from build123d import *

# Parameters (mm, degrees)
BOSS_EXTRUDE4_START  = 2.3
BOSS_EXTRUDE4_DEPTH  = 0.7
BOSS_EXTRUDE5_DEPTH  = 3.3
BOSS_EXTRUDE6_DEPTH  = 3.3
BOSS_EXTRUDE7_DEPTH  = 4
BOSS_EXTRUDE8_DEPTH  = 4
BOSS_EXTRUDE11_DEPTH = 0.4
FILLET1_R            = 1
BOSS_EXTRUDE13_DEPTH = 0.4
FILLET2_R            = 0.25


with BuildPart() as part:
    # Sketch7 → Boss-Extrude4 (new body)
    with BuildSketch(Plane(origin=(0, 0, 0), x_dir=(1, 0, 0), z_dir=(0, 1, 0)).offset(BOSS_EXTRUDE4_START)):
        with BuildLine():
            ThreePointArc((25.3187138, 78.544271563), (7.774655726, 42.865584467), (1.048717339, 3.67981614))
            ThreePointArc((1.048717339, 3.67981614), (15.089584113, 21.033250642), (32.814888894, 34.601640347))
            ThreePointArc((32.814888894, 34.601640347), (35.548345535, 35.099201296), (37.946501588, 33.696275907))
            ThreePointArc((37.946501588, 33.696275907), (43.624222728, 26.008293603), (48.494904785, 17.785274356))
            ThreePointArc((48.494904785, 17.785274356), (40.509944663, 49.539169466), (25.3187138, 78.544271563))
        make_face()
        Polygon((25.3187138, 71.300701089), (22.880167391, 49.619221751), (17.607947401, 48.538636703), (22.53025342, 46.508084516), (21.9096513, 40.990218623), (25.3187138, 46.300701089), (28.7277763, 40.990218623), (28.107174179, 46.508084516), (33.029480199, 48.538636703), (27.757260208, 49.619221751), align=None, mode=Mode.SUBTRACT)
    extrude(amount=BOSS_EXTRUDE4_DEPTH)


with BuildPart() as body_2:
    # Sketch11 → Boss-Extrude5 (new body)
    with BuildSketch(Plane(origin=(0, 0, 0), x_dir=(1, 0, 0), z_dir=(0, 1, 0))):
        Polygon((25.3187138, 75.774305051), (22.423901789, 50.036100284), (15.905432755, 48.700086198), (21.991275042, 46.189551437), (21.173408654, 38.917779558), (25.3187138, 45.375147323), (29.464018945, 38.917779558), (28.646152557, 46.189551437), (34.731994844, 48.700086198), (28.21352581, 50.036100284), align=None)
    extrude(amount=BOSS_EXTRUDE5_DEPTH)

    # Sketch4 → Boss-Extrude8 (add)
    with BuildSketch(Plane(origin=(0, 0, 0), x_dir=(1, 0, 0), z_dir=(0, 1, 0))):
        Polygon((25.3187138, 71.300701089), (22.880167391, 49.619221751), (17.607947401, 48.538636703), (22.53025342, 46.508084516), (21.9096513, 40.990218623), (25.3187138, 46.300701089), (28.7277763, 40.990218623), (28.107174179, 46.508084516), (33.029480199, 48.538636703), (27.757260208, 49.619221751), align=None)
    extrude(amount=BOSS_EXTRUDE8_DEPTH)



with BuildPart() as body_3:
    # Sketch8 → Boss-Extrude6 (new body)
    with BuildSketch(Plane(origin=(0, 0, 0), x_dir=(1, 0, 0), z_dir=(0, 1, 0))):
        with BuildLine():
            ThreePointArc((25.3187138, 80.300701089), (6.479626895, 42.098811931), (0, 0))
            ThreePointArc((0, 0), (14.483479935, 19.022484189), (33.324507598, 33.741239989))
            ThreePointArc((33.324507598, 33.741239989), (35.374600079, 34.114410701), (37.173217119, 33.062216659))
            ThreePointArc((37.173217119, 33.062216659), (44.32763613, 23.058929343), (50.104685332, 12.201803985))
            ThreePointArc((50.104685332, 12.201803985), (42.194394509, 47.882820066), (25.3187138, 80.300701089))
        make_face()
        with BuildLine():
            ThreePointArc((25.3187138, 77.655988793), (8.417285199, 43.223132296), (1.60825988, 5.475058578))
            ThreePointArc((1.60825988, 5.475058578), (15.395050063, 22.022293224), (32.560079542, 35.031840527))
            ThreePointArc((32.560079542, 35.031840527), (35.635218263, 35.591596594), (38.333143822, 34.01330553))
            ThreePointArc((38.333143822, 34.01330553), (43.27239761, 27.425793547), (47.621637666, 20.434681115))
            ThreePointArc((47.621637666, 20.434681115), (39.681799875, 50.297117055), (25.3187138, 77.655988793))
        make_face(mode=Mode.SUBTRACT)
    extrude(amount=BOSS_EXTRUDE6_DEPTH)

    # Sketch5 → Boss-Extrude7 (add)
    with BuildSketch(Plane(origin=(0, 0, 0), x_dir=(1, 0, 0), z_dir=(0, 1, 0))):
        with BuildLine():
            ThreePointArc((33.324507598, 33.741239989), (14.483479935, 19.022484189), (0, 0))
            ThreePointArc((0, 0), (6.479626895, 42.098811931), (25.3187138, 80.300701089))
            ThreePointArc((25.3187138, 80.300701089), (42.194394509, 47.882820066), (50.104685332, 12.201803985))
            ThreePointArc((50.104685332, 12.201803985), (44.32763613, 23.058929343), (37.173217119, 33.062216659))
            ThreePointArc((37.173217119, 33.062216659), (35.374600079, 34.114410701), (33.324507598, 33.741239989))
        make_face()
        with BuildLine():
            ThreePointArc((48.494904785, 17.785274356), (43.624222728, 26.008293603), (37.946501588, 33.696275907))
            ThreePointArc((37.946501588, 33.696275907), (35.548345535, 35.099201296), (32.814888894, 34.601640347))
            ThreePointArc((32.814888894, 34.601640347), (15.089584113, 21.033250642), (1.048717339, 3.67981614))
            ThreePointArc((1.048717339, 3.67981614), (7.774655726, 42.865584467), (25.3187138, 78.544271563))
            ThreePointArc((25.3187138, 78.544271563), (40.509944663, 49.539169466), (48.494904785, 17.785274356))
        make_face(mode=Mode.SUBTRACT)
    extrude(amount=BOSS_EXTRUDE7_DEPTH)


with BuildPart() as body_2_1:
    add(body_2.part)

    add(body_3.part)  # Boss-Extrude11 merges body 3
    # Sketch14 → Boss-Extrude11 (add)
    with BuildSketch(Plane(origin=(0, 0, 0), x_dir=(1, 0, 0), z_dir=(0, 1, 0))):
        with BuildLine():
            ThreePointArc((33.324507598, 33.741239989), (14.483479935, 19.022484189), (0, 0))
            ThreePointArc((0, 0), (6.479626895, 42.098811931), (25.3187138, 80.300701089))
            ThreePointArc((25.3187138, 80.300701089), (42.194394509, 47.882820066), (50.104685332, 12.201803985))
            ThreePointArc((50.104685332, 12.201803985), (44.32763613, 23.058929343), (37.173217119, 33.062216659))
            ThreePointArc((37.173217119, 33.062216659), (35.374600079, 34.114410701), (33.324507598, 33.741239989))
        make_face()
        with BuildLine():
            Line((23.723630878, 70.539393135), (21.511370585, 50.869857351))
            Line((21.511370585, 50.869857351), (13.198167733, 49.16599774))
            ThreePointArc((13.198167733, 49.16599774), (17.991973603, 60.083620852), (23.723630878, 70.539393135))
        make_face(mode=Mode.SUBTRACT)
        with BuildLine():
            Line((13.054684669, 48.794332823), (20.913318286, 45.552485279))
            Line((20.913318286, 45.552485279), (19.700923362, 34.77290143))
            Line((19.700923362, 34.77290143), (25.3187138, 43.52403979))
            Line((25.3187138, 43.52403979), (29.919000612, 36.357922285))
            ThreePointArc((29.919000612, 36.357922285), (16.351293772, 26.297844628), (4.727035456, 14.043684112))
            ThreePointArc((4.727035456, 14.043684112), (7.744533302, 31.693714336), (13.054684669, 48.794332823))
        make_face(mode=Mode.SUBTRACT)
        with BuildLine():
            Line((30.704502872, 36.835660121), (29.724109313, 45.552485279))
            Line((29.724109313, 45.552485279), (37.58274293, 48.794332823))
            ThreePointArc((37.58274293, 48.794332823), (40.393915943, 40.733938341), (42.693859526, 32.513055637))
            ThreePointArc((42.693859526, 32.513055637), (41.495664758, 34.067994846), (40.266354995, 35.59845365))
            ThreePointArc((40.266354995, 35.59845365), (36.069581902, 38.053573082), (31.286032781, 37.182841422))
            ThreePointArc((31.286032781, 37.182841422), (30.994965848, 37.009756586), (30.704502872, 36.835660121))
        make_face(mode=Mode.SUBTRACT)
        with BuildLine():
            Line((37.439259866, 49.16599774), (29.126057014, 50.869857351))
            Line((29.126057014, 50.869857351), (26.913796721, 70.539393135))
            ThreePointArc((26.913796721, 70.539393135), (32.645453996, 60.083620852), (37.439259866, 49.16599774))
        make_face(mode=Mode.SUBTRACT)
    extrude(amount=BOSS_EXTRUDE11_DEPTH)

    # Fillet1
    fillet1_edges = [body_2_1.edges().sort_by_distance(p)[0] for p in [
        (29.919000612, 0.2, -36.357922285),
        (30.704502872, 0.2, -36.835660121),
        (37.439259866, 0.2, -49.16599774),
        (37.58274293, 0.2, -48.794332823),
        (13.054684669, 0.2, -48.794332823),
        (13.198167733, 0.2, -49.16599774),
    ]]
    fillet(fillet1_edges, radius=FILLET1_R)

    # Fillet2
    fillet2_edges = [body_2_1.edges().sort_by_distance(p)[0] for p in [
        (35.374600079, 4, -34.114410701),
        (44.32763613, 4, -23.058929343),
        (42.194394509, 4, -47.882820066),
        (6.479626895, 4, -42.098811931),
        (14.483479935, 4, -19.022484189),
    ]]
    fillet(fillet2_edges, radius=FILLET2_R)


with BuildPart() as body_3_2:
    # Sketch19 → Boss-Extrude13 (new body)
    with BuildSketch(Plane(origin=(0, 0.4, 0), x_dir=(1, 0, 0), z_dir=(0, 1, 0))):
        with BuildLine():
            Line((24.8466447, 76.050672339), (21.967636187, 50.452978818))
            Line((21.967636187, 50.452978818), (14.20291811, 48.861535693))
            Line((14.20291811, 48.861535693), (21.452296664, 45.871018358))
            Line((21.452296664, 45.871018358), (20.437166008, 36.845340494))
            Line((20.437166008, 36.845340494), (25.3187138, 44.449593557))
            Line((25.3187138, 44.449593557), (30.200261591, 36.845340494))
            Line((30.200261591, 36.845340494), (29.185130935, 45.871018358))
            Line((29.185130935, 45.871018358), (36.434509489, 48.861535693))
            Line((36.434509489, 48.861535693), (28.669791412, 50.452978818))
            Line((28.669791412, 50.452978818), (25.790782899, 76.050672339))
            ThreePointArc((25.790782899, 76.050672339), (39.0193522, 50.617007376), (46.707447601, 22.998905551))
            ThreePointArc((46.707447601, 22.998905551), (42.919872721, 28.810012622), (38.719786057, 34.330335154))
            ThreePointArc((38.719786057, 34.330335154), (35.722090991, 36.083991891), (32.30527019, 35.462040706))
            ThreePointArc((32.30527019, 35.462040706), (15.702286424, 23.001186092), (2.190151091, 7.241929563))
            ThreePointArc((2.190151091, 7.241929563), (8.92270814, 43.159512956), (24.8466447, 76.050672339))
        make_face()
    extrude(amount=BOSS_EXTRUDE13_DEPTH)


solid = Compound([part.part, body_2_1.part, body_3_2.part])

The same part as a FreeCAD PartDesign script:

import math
import FreeCAD as App
import Part
import Sketcher

V = App.Vector


def edges_at(feature, points):
    """Names of the edges that pass closest to the given points."""
    edges = feature.Shape.Edges
    near = lambda p: min(range(len(edges)), key=lambda i: edges[i].distToShape(Part.Vertex(*p))[0])
    return sorted({f"Edge{near(p) + 1}" for p in points})

doc = App.newDocument("Part")
body = doc.addObject("PartDesign::Body", "Body")

# Sketch on XZ plane
sketch1 = body.newObject("Sketcher::SketchObject", "Sketch")
sketch1.AttachmentSupport = (doc.getObject("XZ_Plane"), [""])
sketch1.MapMode = "FlatFace"
sketch1.AttachmentOffset = App.Placement(V(0, 0, -2.3), App.Rotation())
sketch1.addGeometry(Part.ArcOfCircle(Part.Circle(V(140, 0, 0), V(0, 0, 1), 139), math.radians(-178), math.radians(-146)), False)
sketch1.addGeometry(Part.ArcOfCircle(Part.Circle(V(80.9, 46.6, 0), V(0, 0, 1), 94.3), math.radians(-148), math.radians(-121)), False)
sketch1.addGeometry(Part.ArcOfCircle(Part.Circle(V(34.9, -31.2, 0), V(0, 0, 1), 4), math.radians(-121), math.radians(-39)), False)
sketch1.addGeometry(Part.ArcOfCircle(Part.Circle(V(-35, 26.1, 0), V(0, 0, 1), 94.3), math.radians(-39.35), math.radians(-27.74)), False)
sketch1.addGeometry(Part.ArcOfCircle(Part.Circle(V(-89.4, 0, 0), V(0, 0, 1), 139), math.radians(-34), math.radians(-7)), False)
sketch1.addGeometry(Part.LineSegment(V(22.9, -49.6, 0), V(25.3, -71.3, 0)), False)
sketch1.addGeometry(Part.LineSegment(V(25.3, -71.3, 0), V(27.8, -49.6, 0)), False)
sketch1.addGeometry(Part.LineSegment(V(27.8, -49.6, 0), V(33, -48.5, 0)), False)
sketch1.addGeometry(Part.LineSegment(V(33, -48.5, 0), V(28.1, -46.5, 0)), False)
sketch1.addGeometry(Part.LineSegment(V(28.1, -46.5, 0), V(28.7, -41, 0)), False)
sketch1.addGeometry(Part.LineSegment(V(28.7, -41, 0), V(25.3, -46.3, 0)), False)
sketch1.addGeometry(Part.LineSegment(V(25.3, -46.3, 0), V(21.9, -41, 0)), False)
sketch1.addGeometry(Part.LineSegment(V(21.9, -41, 0), V(22.5, -46.5, 0)), False)
sketch1.addGeometry(Part.LineSegment(V(22.5, -46.5, 0), V(17.6, -48.5, 0)), False)
sketch1.addGeometry(Part.LineSegment(V(17.6, -48.5, 0), V(22.9, -49.6, 0)), False)
sketch1.addConstraint(Sketcher.Constraint("Coincident", 0, 1, 1, 1))
sketch1.addConstraint(Sketcher.Constraint("Tangent", 1, 2, 2, 1))
sketch1.addConstraint(Sketcher.Constraint("Tangent", 2, 2, 3, 1))
sketch1.addConstraint(Sketcher.Constraint("Coincident", 3, 2, 4, 2))
sketch1.addConstraint(Sketcher.Constraint("Coincident", 4, 1, 0, 2))
sketch1.addConstraint(Sketcher.Constraint("Coincident", 5, 2, 6, 1))
sketch1.addConstraint(Sketcher.Constraint("Coincident", 6, 2, 7, 1))
sketch1.addConstraint(Sketcher.Constraint("Coincident", 7, 2, 8, 1))
sketch1.addConstraint(Sketcher.Constraint("Coincident", 8, 2, 9, 1))
sketch1.addConstraint(Sketcher.Constraint("Coincident", 9, 2, 10, 1))
sketch1.addConstraint(Sketcher.Constraint("Coincident", 10, 2, 11, 1))
sketch1.addConstraint(Sketcher.Constraint("Coincident", 11, 2, 12, 1))
sketch1.addConstraint(Sketcher.Constraint("Coincident", 12, 2, 13, 1))
sketch1.addConstraint(Sketcher.Constraint("Coincident", 13, 2, 14, 1))
sketch1.addConstraint(Sketcher.Constraint("Coincident", 14, 2, 5, 1))
sketch1.addConstraint(Sketcher.Constraint("Equal", 1, 3))
sketch1.addConstraint(Sketcher.Constraint("Equal", 0, 4))
sketch1.addConstraint(Sketcher.Constraint("PointOnObject", 0, 3, -1))
sketch1.addConstraint(Sketcher.Constraint("PointOnObject", 4, 3, -1))
sketch1.addConstraint(Sketcher.Constraint("Parallel", 6, 9))
sketch1.addConstraint(Sketcher.Constraint("Parallel", 5, 12))
sketch1.addConstraint(Sketcher.Constraint("Horizontal", 9, 2, 11, 2))
sketch1.addConstraint(Sketcher.Constraint("Horizontal", 8, 2, 12, 2))
sketch1.addConstraint(Sketcher.Constraint("Horizontal", 7, 2, 13, 2))
sketch1.addConstraint(Sketcher.Constraint("Horizontal", 6, 2, 14, 2))
sketch1.addConstraint(Sketcher.Constraint("Vertical", 4, 1, 5, 2))
sketch1.addConstraint(Sketcher.Constraint("Vertical", 5, 2, 10, 2))
sketch1.addConstraint(Sketcher.Constraint("Equal", 5, 6))
sketch1.addConstraint(Sketcher.Constraint("Equal", 10, 11))
sketch1.addConstraint(Sketcher.Constraint("Equal", 8, 13))
sketch1.addConstraint(Sketcher.Constraint("Radius", 0, 139.0))
sketch1.addConstraint(Sketcher.Constraint("Radius", 2, 4.0))
sketch1.addConstraint(Sketcher.Constraint("DistanceX", -1, 1, 0, 3, 140.0))
sketch1.addConstraint(Sketcher.Constraint("DistanceX", 3, 3, -1, 1, 35.0))
sketch1.addConstraint(Sketcher.Constraint("Radius", 1, 94.333333))
sketch1.addConstraint(Sketcher.Constraint("DistanceY", 2, 2, 3, 2, 15.911002))
sketch1.addConstraint(Sketcher.Constraint("DistanceX", -1, 1, 2, 2, 37.946502))
sketch1.addConstraint(Sketcher.Constraint("DistanceY", 5, 2, -1, 1, 71.300701))
sketch1.addConstraint(Sketcher.Constraint("DistanceY", 10, 2, -1, 1, 46.300701))
sketch1.addConstraint(Sketcher.Constraint("Distance", 5, 21.818182))
sketch1.addConstraint(Sketcher.Constraint("Distance", 7, 5.381818))
sketch1.addConstraint(Sketcher.Constraint("Distance", 10, 6.310541))
sketch1.addConstraint(Sketcher.Constraint("DistanceX", -1, 1, 1, 3, 80.88892))
sketch1.addConstraint(Sketcher.Constraint("DistanceY", 2, 3, -1, 1, 31.160039))
sketch1.addConstraint(Sketcher.Constraint("DistanceX", -1, 1, 6, 2, 27.75726))
sketch1.addConstraint(Sketcher.Constraint("DistanceX", -1, 1, 7, 2, 33.02948))
sketch1.addConstraint(Sketcher.Constraint("DistanceY", 9, 2, -1, 1, 40.990219))
sketch1.addConstraint(Sketcher.Constraint("DistanceY", 8, 2, 2, 2, 12.811809))
pad1 = body.newObject("PartDesign::Pad", "Pad")
pad1.Profile = sketch1
pad1.Length = 0.7
pad1.Reversed = True
body2 = doc.addObject("PartDesign::Body", "Body001")

# Sketch on XZ plane
sketch2 = body2.newObject("Sketcher::SketchObject", "Sketch001")
sketch2.AttachmentSupport = (doc.getObject("XZ_Plane001"), [""])
sketch2.MapMode = "FlatFace"
sketch2.addGeometry(Part.LineSegment(V(25.318714, -75.774305, 0), V(22.423902, -50.0361, 0)), False)
sketch2.addGeometry(Part.LineSegment(V(22.423902, -50.0361, 0), V(15.905433, -48.700086, 0)), False)
sketch2.addGeometry(Part.LineSegment(V(15.905433, -48.700086, 0), V(21.991275, -46.189551, 0)), False)
sketch2.addGeometry(Part.LineSegment(V(21.991275, -46.189551, 0), V(21.173409, -38.91778, 0)), False)
sketch2.addGeometry(Part.LineSegment(V(21.173409, -38.91778, 0), V(25.318714, -45.375147, 0)), False)
sketch2.addGeometry(Part.LineSegment(V(25.318714, -45.375147, 0), V(29.464019, -38.91778, 0)), False)
sketch2.addGeometry(Part.LineSegment(V(29.464019, -38.91778, 0), V(28.646153, -46.189551, 0)), False)
sketch2.addGeometry(Part.LineSegment(V(28.646153, -46.189551, 0), V(34.731995, -48.700086, 0)), False)
sketch2.addGeometry(Part.LineSegment(V(34.731995, -48.700086, 0), V(28.213526, -50.0361, 0)), False)
sketch2.addGeometry(Part.LineSegment(V(28.213526, -50.0361, 0), V(25.318714, -75.774305, 0)), False)
sketch2.addConstraint(Sketcher.Constraint("Coincident", 0, 2, 1, 1))
sketch2.addConstraint(Sketcher.Constraint("Coincident", 1, 2, 2, 1))
sketch2.addConstraint(Sketcher.Constraint("Coincident", 2, 2, 3, 1))
sketch2.addConstraint(Sketcher.Constraint("Coincident", 3, 2, 4, 1))
sketch2.addConstraint(Sketcher.Constraint("Coincident", 4, 2, 5, 1))
sketch2.addConstraint(Sketcher.Constraint("Coincident", 5, 2, 6, 1))
sketch2.addConstraint(Sketcher.Constraint("Coincident", 6, 2, 7, 1))
sketch2.addConstraint(Sketcher.Constraint("Coincident", 7, 2, 8, 1))
sketch2.addConstraint(Sketcher.Constraint("Coincident", 8, 2, 9, 1))
sketch2.addConstraint(Sketcher.Constraint("Coincident", 9, 2, 0, 1))
sketch2.addConstraint(Sketcher.Constraint("DistanceX", -1, 1, 0, 2, 22.423902))
sketch2.addConstraint(Sketcher.Constraint("DistanceY", 0, 2, -1, 1, 50.0361))
sketch2.addConstraint(Sketcher.Constraint("DistanceY", 8, 2, -1, 1, 50.0361))
sketch2.addConstraint(Sketcher.Constraint("Distance", 3, 7.317621))
sketch2.addConstraint(Sketcher.Constraint("Distance", 6, 7.317621))
sketch2.addConstraint(Sketcher.Constraint("DistanceY", 2, 2, -1, 1, 46.189551))
sketch2.addConstraint(Sketcher.Constraint("DistanceX", -1, 1, 3, 2, 21.173409))
sketch2.addConstraint(Sketcher.Constraint("DistanceY", 3, 2, -1, 1, 38.91778))
sketch2.addConstraint(Sketcher.Constraint("DistanceX", -1, 1, 5, 2, 29.464019))
sketch2.addConstraint(Sketcher.Constraint("DistanceY", 5, 2, -1, 1, 38.91778))
sketch2.addConstraint(Sketcher.Constraint("DistanceY", 6, 2, -1, 1, 46.189551))
sketch2.addConstraint(Sketcher.Constraint("DistanceX", 1, 2, 0, 2, 6.518469))
sketch2.addConstraint(Sketcher.Constraint("DistanceX", 2, 2, 4, 2, 3.327439))
sketch2.addConstraint(Sketcher.Constraint("DistanceY", 1, 2, 4, 2, 3.324939))
sketch2.addConstraint(Sketcher.Constraint("DistanceX", 4, 2, 7, 2, 9.413281))
sketch2.addConstraint(Sketcher.Constraint("DistanceY", 7, 2, 4, 2, 3.324939))
sketch2.addConstraint(Sketcher.Constraint("DistanceX", 8, 2, 7, 2, 6.518469))
sketch2.addConstraint(Sketcher.Constraint("DistanceX", 9, 2, 7, 2, 9.413281))
sketch2.addConstraint(Sketcher.Constraint("DistanceY", 9, 2, 7, 2, 27.074219))
sketch2.addConstraint(Sketcher.Constraint("Distance", 0, 25.900485))
pad2 = body2.newObject("PartDesign::Pad", "Pad001")
pad2.Profile = sketch2
pad2.Length = 3.3
pad2.Reversed = True

# Sketch on XZ plane
sketch3 = body2.newObject("Sketcher::SketchObject", "Sketch002")
sketch3.AttachmentSupport = (doc.getObject("XZ_Plane001"), [""])
sketch3.MapMode = "FlatFace"
sketch3.addGeometry(Part.LineSegment(V(25.318714, -71.300701, 0), V(22.880167, -49.619222, 0)), False)
sketch3.addGeometry(Part.LineSegment(V(22.880167, -49.619222, 0), V(17.607947, -48.538637, 0)), False)
sketch3.addGeometry(Part.LineSegment(V(17.607947, -48.538637, 0), V(22.530253, -46.508085, 0)), False)
sketch3.addGeometry(Part.LineSegment(V(22.530253, -46.508085, 0), V(21.909651, -40.990219, 0)), False)
sketch3.addGeometry(Part.LineSegment(V(21.909651, -40.990219, 0), V(25.318714, -46.300701, 0)), False)
sketch3.addGeometry(Part.LineSegment(V(25.318714, -46.300701, 0), V(28.727776, -40.990219, 0)), False)
sketch3.addGeometry(Part.LineSegment(V(28.727776, -40.990219, 0), V(28.107174, -46.508085, 0)), False)
sketch3.addGeometry(Part.LineSegment(V(28.107174, -46.508085, 0), V(33.02948, -48.538637, 0)), False)
sketch3.addGeometry(Part.LineSegment(V(33.02948, -48.538637, 0), V(27.75726, -49.619222, 0)), False)
sketch3.addGeometry(Part.LineSegment(V(27.75726, -49.619222, 0), V(25.318714, -71.300701, 0)), False)
sketch3.addConstraint(Sketcher.Constraint("Coincident", 0, 2, 1, 1))
sketch3.addConstraint(Sketcher.Constraint("Coincident", 1, 2, 2, 1))
sketch3.addConstraint(Sketcher.Constraint("Coincident", 2, 2, 3, 1))
sketch3.addConstraint(Sketcher.Constraint("Coincident", 3, 2, 4, 1))
sketch3.addConstraint(Sketcher.Constraint("Coincident", 4, 2, 5, 1))
sketch3.addConstraint(Sketcher.Constraint("Coincident", 5, 2, 6, 1))
sketch3.addConstraint(Sketcher.Constraint("Coincident", 6, 2, 7, 1))
sketch3.addConstraint(Sketcher.Constraint("Coincident", 7, 2, 8, 1))
sketch3.addConstraint(Sketcher.Constraint("Coincident", 8, 2, 9, 1))
sketch3.addConstraint(Sketcher.Constraint("Coincident", 9, 2, 0, 1))
sketch3.addConstraint(Sketcher.Constraint("Parallel", 0, 3))
sketch3.addConstraint(Sketcher.Constraint("Parallel", 6, 9))
sketch3.addConstraint(Sketcher.Constraint("Horizontal", 3, 2, 5, 2))
sketch3.addConstraint(Sketcher.Constraint("Horizontal", 2, 2, 6, 2))
sketch3.addConstraint(Sketcher.Constraint("Horizontal", 1, 2, 7, 2))
sketch3.addConstraint(Sketcher.Constraint("Horizontal", 0, 2, 8, 2))
sketch3.addConstraint(Sketcher.Constraint("Vertical", 4, 2, 9, 2))
sketch3.addConstraint(Sketcher.Constraint("Equal", 4, 5))
sketch3.addConstraint(Sketcher.Constraint("Equal", 3, 6))
sketch3.addConstraint(Sketcher.Constraint("Equal", 2, 7))
sketch3.addConstraint(Sketcher.Constraint("DistanceY", 4, 2, -1, 1, 46.300701))
sketch3.addConstraint(Sketcher.Constraint("DistanceY", 9, 2, -1, 1, 71.300701))
sketch3.addConstraint(Sketcher.Constraint("Distance", 0, 21.818182))
sketch3.addConstraint(Sketcher.Constraint("Distance", 1, 5.381818))
sketch3.addConstraint(Sketcher.Constraint("Distance", 4, 6.310541))
sketch3.addConstraint(Sketcher.Constraint("DistanceY", 0, 2, -1, 1, 49.619222))
sketch3.addConstraint(Sketcher.Constraint("DistanceX", -1, 1, 3, 2, 21.909651))
sketch3.addConstraint(Sketcher.Constraint("DistanceY", 3, 2, -1, 1, 40.990219))
sketch3.addConstraint(Sketcher.Constraint("DistanceX", -1, 1, 7, 2, 33.02948))
sketch3.addConstraint(Sketcher.Constraint("DistanceX", 2, 2, 4, 2, 2.78846))
pad3 = body2.newObject("PartDesign::Pad", "Pad002")
pad3.Profile = sketch3
pad3.Length = 4
pad3.Reversed = True
body3 = doc.addObject("PartDesign::Body", "Body002")

# Sketch on XZ plane
sketch4 = body3.newObject("Sketcher::SketchObject", "Sketch003")
sketch4.AttachmentSupport = (doc.getObject("XZ_Plane002"), [""])
sketch4.MapMode = "FlatFace"
sketch4.addGeometry(Part.ArcOfCircle(Part.Circle(V(140, 0, 0), V(0, 0, 1), 140), math.radians(180), math.radians(215)), False)
sketch4.addGeometry(Part.ArcOfCircle(Part.Circle(V(80.88892, 46.562793, 0), V(0, 0, 1), 93.333333), math.radians(-150.073603), math.radians(-120.638435)), False)
sketch4.addGeometry(Part.ArcOfCircle(Part.Circle(V(34.853364, -31.160039, 0), V(0, 0, 1), 3), math.radians(-120.638435), math.radians(-39.350246)), False)
sketch4.addGeometry(Part.ArcOfCircle(Part.Circle(V(-35, 26.116647, 0), V(0, 0, 1), 93.333333), math.radians(-39.350246), math.radians(-24.239693)), False)
sketch4.addGeometry(Part.ArcOfCircle(Part.Circle(V(-89.362572, 0, 0), V(0, 0, 1), 140), math.radians(-35), math.radians(-5)), False)
sketch4.addGeometry(Part.ArcOfCircle(Part.Circle(V(140, 0, 0), V(0, 0, 1), 138.5), math.radians(-177.734444), math.radians(-145.896259)), False)
sketch4.addGeometry(Part.ArcOfCircle(Part.Circle(V(-89.362572, 0, 0), V(0, 0, 1), 138.5), math.radians(-34.103741), math.radians(-8.484556)), False)
sketch4.addGeometry(Part.ArcOfCircle(Part.Circle(V(-35, 26.116646, 0), V(0, 0, 1), 94.833333), math.radians(-39.350246), math.radians(-29.398119)), False)
sketch4.addGeometry(Part.ArcOfCircle(Part.Circle(V(34.853364, -31.160039, 0), V(0, 0, 1), 4.5), math.radians(-120.638435), math.radians(-39.350245)), False)
sketch4.addGeometry(Part.ArcOfCircle(Part.Circle(V(80.88892, 46.562793, 0), V(0, 0, 1), 94.833333), math.radians(-146.720102), math.radians(-120.638435)), False)
sketch4.addConstraint(Sketcher.Constraint("Coincident", 0, 1, 1, 1))
sketch4.addConstraint(Sketcher.Constraint("Tangent", 1, 2, 2, 1))
sketch4.addConstraint(Sketcher.Constraint("Tangent", 2, 2, 3, 1))
sketch4.addConstraint(Sketcher.Constraint("Coincident", 3, 2, 4, 2))
sketch4.addConstraint(Sketcher.Constraint("Coincident", 4, 1, 0, 2))
sketch4.addConstraint(Sketcher.Constraint("Coincident", 5, 2, 6, 1))
sketch4.addConstraint(Sketcher.Constraint("Coincident", 6, 2, 7, 2))
sketch4.addConstraint(Sketcher.Constraint("Tangent", 7, 1, 8, 2))
sketch4.addConstraint(Sketcher.Constraint("Tangent", 8, 1, 9, 2))
sketch4.addConstraint(Sketcher.Constraint("Coincident", 9, 1, 5, 1))
sketch4.addConstraint(Sketcher.Constraint("Coincident", 0, 1, -1, 1))
sketch4.addConstraint(Sketcher.Constraint("Coincident", 5, 3, 0, 3))
sketch4.addConstraint(Sketcher.Constraint("Coincident", 6, 3, 4, 3))
sketch4.addConstraint(Sketcher.Constraint("Coincident", 7, 3, 3, 3))
sketch4.addConstraint(Sketcher.Constraint("Coincident", 8, 3, 2, 3))
sketch4.addConstraint(Sketcher.Constraint("Coincident", 9, 3, 1, 3))
sketch4.addConstraint(Sketcher.Constraint("Equal", 1, 3))
sketch4.addConstraint(Sketcher.Constraint("Equal", 0, 4))
sketch4.addConstraint(Sketcher.Constraint("Equal", 5, 6))
sketch4.addConstraint(Sketcher.Constraint("PointOnObject", 0, 3, -1))
sketch4.addConstraint(Sketcher.Constraint("PointOnObject", 4, 3, -1))
sketch4.addConstraint(Sketcher.Constraint("Radius", 0, 140.0))
sketch4.addConstraint(Sketcher.Constraint("Radius", 2, 3.0))
sketch4.addConstraint(Sketcher.Constraint("Radius", 5, 138.5))
sketch4.addConstraint(Sketcher.Constraint("Radius", 8, 4.5))
sketch4.addConstraint(Sketcher.Constraint("DistanceX", 3, 3, -1, 1, 35.0))
sketch4.addConstraint(Sketcher.Constraint("Radius", 1, 93.333333))
sketch4.addConstraint(Sketcher.Constraint("DistanceY", 4, 1, -1, 1, 80.300701))
sketch4.addConstraint(Sketcher.Constraint("DistanceY", 8, 1, 8, 3, 3.871802))
sketch4.addConstraint(Sketcher.Constraint("DistanceX", -1, 1, 1, 3, 80.88892))
pad4 = body3.newObject("PartDesign::Pad", "Pad003")
pad4.Profile = sketch4
pad4.Length = 3.3
pad4.Reversed = True

# Sketch on XZ plane
sketch5 = body3.newObject("Sketcher::SketchObject", "Sketch004")
sketch5.AttachmentSupport = (doc.getObject("XZ_Plane002"), [""])
sketch5.MapMode = "FlatFace"
sketch5.addGeometry(Part.ArcOfCircle(Part.Circle(V(80.88892, 46.562793, 0), V(0, 0, 1), 93.333333), math.radians(-150.073603), math.radians(-120.638435)), False)
sketch5.addGeometry(Part.ArcOfCircle(Part.Circle(V(34.853364, -31.160039, 0), V(0, 0, 1), 3), math.radians(-120.638435), math.radians(-39.350246)), False)
sketch5.addGeometry(Part.ArcOfCircle(Part.Circle(V(-35, 26.116647, 0), V(0, 0, 1), 93.333333), math.radians(-39.350246), math.radians(-24.239693)), False)
sketch5.addGeometry(Part.ArcOfCircle(Part.Circle(V(-89.362572, 0, 0), V(0, 0, 1), 140), math.radians(-35), math.radians(-5)), False)
sketch5.addGeometry(Part.ArcOfCircle(Part.Circle(V(140, 0, 0), V(0, 0, 1), 140), math.radians(180), math.radians(215)), False)
sketch5.addGeometry(Part.ArcOfCircle(Part.Circle(V(-35, 26.116646, 0), V(0, 0, 1), 94.333333), math.radians(-39.350246), math.radians(-27.735555)), False)
sketch5.addGeometry(Part.ArcOfCircle(Part.Circle(V(34.853364, -31.160039, 0), V(0, 0, 1), 4), math.radians(-120.638435), math.radians(-39.350246)), False)
sketch5.addGeometry(Part.ArcOfCircle(Part.Circle(V(80.88892, 46.562793, 0), V(0, 0, 1), 94.333333), math.radians(-147.818219), math.radians(-120.638435)), False)
sketch5.addGeometry(Part.ArcOfCircle(Part.Circle(V(140, 0, 0), V(0, 0, 1), 139), math.radians(-178.483003), math.radians(-145.593077)), False)
sketch5.addGeometry(Part.ArcOfCircle(Part.Circle(V(-89.362572, 0, 0), V(0, 0, 1), 139), math.radians(-34.406923), math.radians(-7.35124)), False)
sketch5.addConstraint(Sketcher.Constraint("Coincident", 0, 2, 1, 1))
sketch5.addConstraint(Sketcher.Constraint("Coincident", 1, 2, 2, 1))
sketch5.addConstraint(Sketcher.Constraint("Coincident", 2, 2, 3, 2))
sketch5.addConstraint(Sketcher.Constraint("Coincident", 3, 1, 4, 2))
sketch5.addConstraint(Sketcher.Constraint("Coincident", 4, 1, 0, 1))
sketch5.addConstraint(Sketcher.Constraint("Coincident", 5, 1, 6, 2))
sketch5.addConstraint(Sketcher.Constraint("Coincident", 6, 1, 7, 2))
sketch5.addConstraint(Sketcher.Constraint("Coincident", 7, 1, 8, 1))
sketch5.addConstraint(Sketcher.Constraint("Coincident", 8, 2, 9, 1))
sketch5.addConstraint(Sketcher.Constraint("Coincident", 9, 2, 5, 2))
sketch5.addConstraint(Sketcher.Constraint("Coincident", 4, 1, -1, 1))
sketch5.addConstraint(Sketcher.Constraint("Coincident", 5, 3, 2, 3))
sketch5.addConstraint(Sketcher.Constraint("Coincident", 6, 3, 1, 3))
sketch5.addConstraint(Sketcher.Constraint("Coincident", 7, 3, 0, 3))
sketch5.addConstraint(Sketcher.Constraint("Coincident", 8, 3, 4, 3))
sketch5.addConstraint(Sketcher.Constraint("Coincident", 9, 3, 3, 3))
sketch5.addConstraint(Sketcher.Constraint("PointOnObject", 3, 3, -1))
sketch5.addConstraint(Sketcher.Constraint("PointOnObject", 4, 3, -1))
sketch5.addConstraint(Sketcher.Constraint("Radius", 1, 3.0))
sketch5.addConstraint(Sketcher.Constraint("Radius", 3, 140.0))
sketch5.addConstraint(Sketcher.Constraint("Radius", 4, 140.0))
sketch5.addConstraint(Sketcher.Constraint("Radius", 6, 4.0))
sketch5.addConstraint(Sketcher.Constraint("Radius", 8, 139.0))
sketch5.addConstraint(Sketcher.Constraint("Radius", 9, 139.0))
sketch5.addConstraint(Sketcher.Constraint("DistanceX", 2, 3, -1, 1, 35.0))
sketch5.addConstraint(Sketcher.Constraint("Radius", 0, 93.333333))
sketch5.addConstraint(Sketcher.Constraint("Radius", 2, 93.333333))
sketch5.addConstraint(Sketcher.Constraint("DistanceY", 5, 1, 9, 2, 15.911002))
sketch5.addConstraint(Sketcher.Constraint("DistanceY", 3, 1, -1, 1, 80.300701))
sketch5.addConstraint(Sketcher.Constraint("DistanceX", -1, 1, 5, 1, 37.946502))
sketch5.addConstraint(Sketcher.Constraint("DistanceY", 0, 2, 1, 3, 2.581201))
sketch5.addConstraint(Sketcher.Constraint("DistanceY", 6, 1, 0, 2, 0.8604))
sketch5.addConstraint(Sketcher.Constraint("DistanceX", -1, 1, 0, 3, 80.88892))
sketch5.addConstraint(Sketcher.Constraint("DistanceX", 0, 2, 1, 2, 3.84871))
pad5 = body3.newObject("PartDesign::Pad", "Pad004")
pad5.Profile = sketch5
pad5.Length = 4
pad5.Reversed = True
body2.AllowCompound = True
doc.recompute()

boolean = body2.newObject("PartDesign::Boolean", "Boolean")
boolean.Type = "Fuse"
boolean.addObjects([body3])

# Sketch on XZ plane
sketch6 = body2.newObject("Sketcher::SketchObject", "Sketch005")
sketch6.AttachmentSupport = (doc.getObject("XZ_Plane001"), [""])
sketch6.MapMode = "FlatFace"
sketch6.addGeometry(Part.ArcOfCircle(Part.Circle(V(80.9, 46.6, 0), V(0, 0, 1), 93.3), math.radians(-150), math.radians(-121)), False)
sketch6.addGeometry(Part.ArcOfCircle(Part.Circle(V(34.9, -31.2, 0), V(0, 0, 1), 3), math.radians(-121), math.radians(-39)), False)
sketch6.addGeometry(Part.ArcOfCircle(Part.Circle(V(-35, 26.1, 0), V(0, 0, 1), 93.3), math.radians(-39.35), math.radians(-24.24)), False)
sketch6.addGeometry(Part.ArcOfCircle(Part.Circle(V(-89.4, 0, 0), V(0, 0, 1), 140), math.radians(-35), math.radians(-5)), False)
sketch6.addGeometry(Part.ArcOfCircle(Part.Circle(V(140, 0, 0), V(0, 0, 1), 140), math.radians(180), math.radians(215)), False)
sketch6.addGeometry(Part.LineSegment(V(30.7, -36.8, 0), V(29.7, -45.6, 0)), False)
sketch6.addGeometry(Part.LineSegment(V(29.7, -45.6, 0), V(37.6, -48.8, 0)), False)
sketch6.addGeometry(Part.ArcOfCircle(Part.Circle(V(-89.4, 0, 0), V(0, 0, 1), 136), math.radians(-21.03), math.radians(-13.83)), False)
sketch6.addGeometry(Part.ArcOfCircle(Part.Circle(V(-35, 26.1, 0), V(0, 0, 1), 97.3), math.radians(-39.35), math.radians(-37.04)), False)
sketch6.addGeometry(Part.ArcOfCircle(Part.Circle(V(34.9, -31.2, 0), V(0, 0, 1), 7), math.radians(-121), math.radians(-39)), False)
sketch6.addGeometry(Part.ArcOfCircle(Part.Circle(V(80.9, 46.6, 0), V(0, 0, 1), 97.3), math.radians(-121.04), math.radians(-120.64)), False)
sketch6.addGeometry(Part.LineSegment(V(13.1, -48.8, 0), V(20.9, -45.6, 0)), False)
sketch6.addGeometry(Part.LineSegment(V(20.9, -45.6, 0), V(19.7, -34.8, 0)), False)
sketch6.addGeometry(Part.LineSegment(V(19.7, -34.8, 0), V(25.3, -43.5, 0)), False)
sketch6.addGeometry(Part.LineSegment(V(25.3, -43.5, 0), V(29.9, -36.4, 0)), False)
sketch6.addGeometry(Part.ArcOfCircle(Part.Circle(V(80.9, 46.6, 0), V(0, 0, 1), 97.3), math.radians(-141.49), math.radians(-121.58)), False)
sketch6.addGeometry(Part.ArcOfCircle(Part.Circle(V(140, 0, 0), V(0, 0, 1), 136), math.radians(-174.07), math.radians(-158.97)), False)
sketch6.addGeometry(Part.LineSegment(V(37.4, -49.2, 0), V(29.1, -50.9, 0)), False)
sketch6.addGeometry(Part.LineSegment(V(29.1, -50.9, 0), V(26.9, -70.5, 0)), False)
sketch6.addGeometry(Part.ArcOfCircle(Part.Circle(V(-89.4, 0, 0), V(0, 0, 1), 136), math.radians(-31.24), math.radians(-21.19)), False)
sketch6.addGeometry(Part.LineSegment(V(23.7, -70.5, 0), V(21.5, -50.9, 0)), False)
sketch6.addGeometry(Part.LineSegment(V(21.5, -50.9, 0), V(13.2, -49.2, 0)), False)
sketch6.addGeometry(Part.ArcOfCircle(Part.Circle(V(140, 0, 0), V(0, 0, 1), 136), math.radians(-158.81), math.radians(-148.76)), False)
sketch6.addConstraint(Sketcher.Constraint("Tangent", 0, 2, 1, 1))
sketch6.addConstraint(Sketcher.Constraint("Tangent", 1, 2, 2, 1))
sketch6.addConstraint(Sketcher.Constraint("Coincident", 2, 2, 3, 2))
sketch6.addConstraint(Sketcher.Constraint("Coincident", 3, 1, 4, 2))
sketch6.addConstraint(Sketcher.Constraint("Coincident", 4, 1, 0, 1))
sketch6.addConstraint(Sketcher.Constraint("Coincident", 5, 2, 6, 1))
sketch6.addConstraint(Sketcher.Constraint("Coincident", 6, 2, 7, 1))
sketch6.addConstraint(Sketcher.Constraint("Coincident", 7, 2, 8, 2))
sketch6.addConstraint(Sketcher.Constraint("Tangent", 8, 1, 9, 2))
sketch6.addConstraint(Sketcher.Constraint("Tangent", 9, 1, 10, 2))
sketch6.addConstraint(Sketcher.Constraint("Coincident", 10, 1, 5, 1))
sketch6.addConstraint(Sketcher.Constraint("Coincident", 11, 2, 12, 1))
sketch6.addConstraint(Sketcher.Constraint("Coincident", 12, 2, 13, 1))
sketch6.addConstraint(Sketcher.Constraint("Coincident", 13, 2, 14, 1))
sketch6.addConstraint(Sketcher.Constraint("Coincident", 14, 2, 15, 2))
sketch6.addConstraint(Sketcher.Constraint("Coincident", 15, 1, 16, 1))
sketch6.addConstraint(Sketcher.Constraint("Coincident", 16, 2, 11, 1))
sketch6.addConstraint(Sketcher.Constraint("Coincident", 17, 2, 18, 1))
sketch6.addConstraint(Sketcher.Constraint("Coincident", 18, 2, 19, 1))
sketch6.addConstraint(Sketcher.Constraint("Coincident", 19, 2, 17, 1))
sketch6.addConstraint(Sketcher.Constraint("Coincident", 20, 2, 21, 1))
sketch6.addConstraint(Sketcher.Constraint("Coincident", 21, 2, 22, 1))
sketch6.addConstraint(Sketcher.Constraint("Coincident", 22, 2, 20, 1))
sketch6.addConstraint(Sketcher.Constraint("Coincident", 4, 1, -1, 1))
sketch6.addConstraint(Sketcher.Constraint("Coincident", 7, 3, 3, 3))
sketch6.addConstraint(Sketcher.Constraint("Coincident", 8, 3, 2, 3))
sketch6.addConstraint(Sketcher.Constraint("Coincident", 9, 3, 1, 3))
sketch6.addConstraint(Sketcher.Constraint("Coincident", 15, 3, 0, 3))
sketch6.addConstraint(Sketcher.Constraint("Coincident", 16, 3, 4, 3))
sketch6.addConstraint(Sketcher.Constraint("Coincident", 19, 3, 3, 3))
sketch6.addConstraint(Sketcher.Constraint("Coincident", 22, 3, 4, 3))
sketch6.addConstraint(Sketcher.Constraint("Equal", 0, 2))
sketch6.addConstraint(Sketcher.Constraint("Equal", 3, 4))
sketch6.addConstraint(Sketcher.Constraint("Equal", 8, 15))
sketch6.addConstraint(Sketcher.Constraint("Equal", 7, 16))
sketch6.addConstraint(Sketcher.Constraint("Equal", 16, 19))
sketch6.addConstraint(Sketcher.Constraint("Equal", 19, 22))
sketch6.addConstraint(Sketcher.Constraint("PointOnObject", 3, 3, -1))
sketch6.addConstraint(Sketcher.Constraint("PointOnObject", 4, 3, -1))
sketch6.addConstraint(Sketcher.Constraint("Parallel", 5, 18))
sketch6.addConstraint(Sketcher.Constraint("Parallel", 12, 20))
sketch6.addConstraint(Sketcher.Constraint("Horizontal", 5, 2, 11, 2))
sketch6.addConstraint(Sketcher.Constraint("Horizontal", 6, 2, 16, 2))
sketch6.addConstraint(Sketcher.Constraint("Horizontal", 17, 2, 20, 2))
sketch6.addConstraint(Sketcher.Constraint("Horizontal", 19, 2, 21, 2))
sketch6.addConstraint(Sketcher.Constraint("Horizontal", 18, 2, 22, 2))
sketch6.addConstraint(Sketcher.Constraint("Vertical", 3, 1, 13, 2))
sketch6.addConstraint(Sketcher.Constraint("Equal", 6, 11))
sketch6.addConstraint(Sketcher.Constraint("Equal", 18, 20))
sketch6.addConstraint(Sketcher.Constraint("Radius", 1, 3.0))
sketch6.addConstraint(Sketcher.Constraint("Radius", 3, 140.0))
sketch6.addConstraint(Sketcher.Constraint("Radius", 7, 136.0))
sketch6.addConstraint(Sketcher.Constraint("Radius", 9, 7.0))
sketch6.addConstraint(Sketcher.Constraint("DistanceX", 2, 3, -1, 1, 35.0))
sketch6.addConstraint(Sketcher.Constraint("Radius", 10, 97.33342))
sketch6.addConstraint(Sketcher.Constraint("DistanceX", -1, 1, 14, 2, 29.919001))
sketch6.addConstraint(Sketcher.Constraint("Radius", 0, 93.333333))
sketch6.addConstraint(Sketcher.Constraint("DistanceY", 3, 1, -1, 1, 80.300701))
sketch6.addConstraint(Sketcher.Constraint("DistanceY", 12, 2, -1, 1, 34.772901))
sketch6.addConstraint(Sketcher.Constraint("DistanceX", 1, 3, 10, 3, 46.035601))
sketch6.addConstraint(Sketcher.Constraint("DistanceX", 5, 2, 0, 2, 3.600398))
sketch6.addConstraint(Sketcher.Constraint("DistanceY", 8, 1, 7, 2, 3.085398))
sketch6.addConstraint(Sketcher.Constraint("DistanceY", 13, 2, 9, 1, 6.341198))
sketch6.addConstraint(Sketcher.Constraint("Distance", 6, 8.501041))
sketch6.addConstraint(Sketcher.Constraint("Distance", 12, 10.847549))
sketch6.addConstraint(Sketcher.Constraint("DistanceX", -1, 1, 0, 3, 80.88892))
sketch6.addConstraint(Sketcher.Constraint("DistanceY", 10, 1, -1, 1, 36.83566))
sketch6.addConstraint(Sketcher.Constraint("DistanceX", -1, 1, 19, 2, 37.43926))
sketch6.addConstraint(Sketcher.Constraint("DistanceX", -1, 1, 20, 2, 21.511371))
sketch6.addConstraint(Sketcher.Constraint("DistanceX", 18, 2, 17, 2, 2.21226))
pad6 = body2.newObject("PartDesign::Pad", "Pad005")
pad6.Profile = sketch6
pad6.Length = 0.4
pad6.Reversed = True
doc.recompute()

fillet = body2.newObject("PartDesign::Fillet", "Fillet")
fillet.Base = (pad6, edges_at(pad6, [
    (29.919, 0.2, -36.358),
    (30.705, 0.2, -36.836),
    (37.439, 0.2, -49.166),
    (37.583, 0.2, -48.794),
    (13.055, 0.2, -48.794),
    (13.198, 0.2, -49.166),
]))
fillet.Radius = 1
doc.recompute()

fillet2 = body2.newObject("PartDesign::Fillet", "Fillet001")
fillet2.Base = (fillet, edges_at(fillet, [
    (35.375, 4, -34.114),
    (44.328, 4, -23.059),
    (42.194, 4, -47.883),
    (6.48, 4, -42.099),
    (14.483, 4, -19.022),
]))
fillet2.Radius = 0.25
body4 = doc.addObject("PartDesign::Body", "Body003")

# Sketch on XZ plane
sketch7 = body4.newObject("Sketcher::SketchObject", "Sketch006")
sketch7.AttachmentSupport = (doc.getObject("XZ_Plane003"), [""])
sketch7.MapMode = "FlatFace"
sketch7.AttachmentOffset = App.Placement(V(0, 0, -0.4), App.Rotation())
sketch7.addGeometry(Part.LineSegment(V(22, -50, 0), V(25, -76, 0)), False)
sketch7.addGeometry(Part.ArcOfCircle(Part.Circle(V(140, 0, 0), V(0, 0, 1), 138), math.radians(-177), math.radians(-147)), False)
sketch7.addGeometry(Part.ArcOfCircle(Part.Circle(V(81, 47, 0), V(0, 0, 1), 95), math.radians(-146), math.radians(-121)), False)
sketch7.addGeometry(Part.ArcOfCircle(Part.Circle(V(35, -31, 0), V(0, 0, 1), 5), math.radians(-121), math.radians(-39)), False)
sketch7.addGeometry(Part.ArcOfCircle(Part.Circle(V(-35, 26, 0), V(0, 0, 1), 95), math.radians(-39.35), math.radians(-31.01)), False)
sketch7.addGeometry(Part.ArcOfCircle(Part.Circle(V(-89, 0, 0), V(0, 0, 1), 138), math.radians(-33), math.radians(-10)), False)
sketch7.addGeometry(Part.LineSegment(V(26, -76, 0), V(29, -50, 0)), False)
sketch7.addGeometry(Part.LineSegment(V(29, -50, 0), V(36, -49, 0)), False)
sketch7.addGeometry(Part.LineSegment(V(36, -49, 0), V(29, -46, 0)), False)
sketch7.addGeometry(Part.LineSegment(V(29, -46, 0), V(30, -37, 0)), False)
sketch7.addGeometry(Part.LineSegment(V(30, -37, 0), V(25, -44, 0)), False)
sketch7.addGeometry(Part.LineSegment(V(25, -44, 0), V(20, -37, 0)), False)
sketch7.addGeometry(Part.LineSegment(V(20, -37, 0), V(21, -46, 0)), False)
sketch7.addGeometry(Part.LineSegment(V(21, -46, 0), V(14, -49, 0)), False)
sketch7.addGeometry(Part.LineSegment(V(14, -49, 0), V(22, -50, 0)), False)
sketch7.addConstraint(Sketcher.Constraint("Coincident", 0, 2, 1, 2))
sketch7.addConstraint(Sketcher.Constraint("Coincident", 1, 1, 2, 1))
sketch7.addConstraint(Sketcher.Constraint("Tangent", 2, 2, 3, 1))
sketch7.addConstraint(Sketcher.Constraint("Tangent", 3, 2, 4, 1))
sketch7.addConstraint(Sketcher.Constraint("Coincident", 4, 2, 5, 2))
sketch7.addConstraint(Sketcher.Constraint("Coincident", 5, 1, 6, 1))
sketch7.addConstraint(Sketcher.Constraint("Coincident", 6, 2, 7, 1))
sketch7.addConstraint(Sketcher.Constraint("Coincident", 7, 2, 8, 1))
sketch7.addConstraint(Sketcher.Constraint("Coincident", 8, 2, 9, 1))
sketch7.addConstraint(Sketcher.Constraint("Coincident", 9, 2, 10, 1))
sketch7.addConstraint(Sketcher.Constraint("Coincident", 10, 2, 11, 1))
sketch7.addConstraint(Sketcher.Constraint("Coincident", 11, 2, 12, 1))
sketch7.addConstraint(Sketcher.Constraint("Coincident", 12, 2, 13, 1))
sketch7.addConstraint(Sketcher.Constraint("Coincident", 13, 2, 14, 1))
sketch7.addConstraint(Sketcher.Constraint("Coincident", 14, 2, 0, 1))
sketch7.addConstraint(Sketcher.Constraint("Equal", 2, 4))
sketch7.addConstraint(Sketcher.Constraint("Equal", 1, 5))
sketch7.addConstraint(Sketcher.Constraint("PointOnObject", 1, 3, -1))
sketch7.addConstraint(Sketcher.Constraint("PointOnObject", 5, 3, -1))
sketch7.addConstraint(Sketcher.Constraint("Parallel", 6, 9))
sketch7.addConstraint(Sketcher.Constraint("Parallel", 0, 12))
sketch7.addConstraint(Sketcher.Constraint("Horizontal", 0, 2, 5, 1))
sketch7.addConstraint(Sketcher.Constraint("Horizontal", 9, 2, 11, 2))
sketch7.addConstraint(Sketcher.Constraint("Horizontal", 8, 2, 12, 2))
sketch7.addConstraint(Sketcher.Constraint("Horizontal", 7, 2, 13, 2))
sketch7.addConstraint(Sketcher.Constraint("Horizontal", 6, 2, 14, 2))
sketch7.addConstraint(Sketcher.Constraint("Equal", 0, 6))
sketch7.addConstraint(Sketcher.Constraint("Equal", 10, 11))
sketch7.addConstraint(Sketcher.Constraint("Equal", 8, 13))
sketch7.addConstraint(Sketcher.Constraint("Equal", 7, 14))
sketch7.addConstraint(Sketcher.Constraint("Radius", 1, 138.0))
sketch7.addConstraint(Sketcher.Constraint("Radius", 3, 5.0))
sketch7.addConstraint(Sketcher.Constraint("DistanceX", -1, 1, 1, 3, 140.0))
sketch7.addConstraint(Sketcher.Constraint("DistanceX", 4, 3, -1, 1, 35.0))
sketch7.addConstraint(Sketcher.Constraint("Radius", 2, 95.333333))
sketch7.addConstraint(Sketcher.Constraint("DistanceY", 7, 2, 3, 2, 14.531201))
sketch7.addConstraint(Sketcher.Constraint("DistanceY", 9, 2, 2, 2, 1.3833))
sketch7.addConstraint(Sketcher.Constraint("DistanceY", 9, 2, 3, 3, 5.685302))
sketch7.addConstraint(Sketcher.Constraint("Distance", 7, 7.92613))
sketch7.addConstraint(Sketcher.Constraint("Distance", 10, 9.03627))
sketch7.addConstraint(Sketcher.Constraint("DistanceX", -1, 1, 2, 3, 80.88892))
sketch7.addConstraint(Sketcher.Constraint("DistanceY", 3, 3, -1, 1, 31.160039))
sketch7.addConstraint(Sketcher.Constraint("DistanceX", -1, 1, 6, 2, 28.669791))
sketch7.addConstraint(Sketcher.Constraint("DistanceY", 6, 2, -1, 1, 50.452979))
sketch7.addConstraint(Sketcher.Constraint("DistanceX", -1, 1, 8, 2, 29.185131))
sketch7.addConstraint(Sketcher.Constraint("DistanceY", 8, 2, -1, 1, 45.871018))
sketch7.addConstraint(Sketcher.Constraint("DistanceX", -1, 1, 9, 2, 30.200262))
sketch7.addConstraint(Sketcher.Constraint("DistanceX", -1, 1, 13, 2, 14.202918))
pad7 = body4.newObject("PartDesign::Pad", "Pad006")
pad7.Profile = sketch7
pad7.Length = 0.4
pad7.Reversed = True

doc.recompute()
